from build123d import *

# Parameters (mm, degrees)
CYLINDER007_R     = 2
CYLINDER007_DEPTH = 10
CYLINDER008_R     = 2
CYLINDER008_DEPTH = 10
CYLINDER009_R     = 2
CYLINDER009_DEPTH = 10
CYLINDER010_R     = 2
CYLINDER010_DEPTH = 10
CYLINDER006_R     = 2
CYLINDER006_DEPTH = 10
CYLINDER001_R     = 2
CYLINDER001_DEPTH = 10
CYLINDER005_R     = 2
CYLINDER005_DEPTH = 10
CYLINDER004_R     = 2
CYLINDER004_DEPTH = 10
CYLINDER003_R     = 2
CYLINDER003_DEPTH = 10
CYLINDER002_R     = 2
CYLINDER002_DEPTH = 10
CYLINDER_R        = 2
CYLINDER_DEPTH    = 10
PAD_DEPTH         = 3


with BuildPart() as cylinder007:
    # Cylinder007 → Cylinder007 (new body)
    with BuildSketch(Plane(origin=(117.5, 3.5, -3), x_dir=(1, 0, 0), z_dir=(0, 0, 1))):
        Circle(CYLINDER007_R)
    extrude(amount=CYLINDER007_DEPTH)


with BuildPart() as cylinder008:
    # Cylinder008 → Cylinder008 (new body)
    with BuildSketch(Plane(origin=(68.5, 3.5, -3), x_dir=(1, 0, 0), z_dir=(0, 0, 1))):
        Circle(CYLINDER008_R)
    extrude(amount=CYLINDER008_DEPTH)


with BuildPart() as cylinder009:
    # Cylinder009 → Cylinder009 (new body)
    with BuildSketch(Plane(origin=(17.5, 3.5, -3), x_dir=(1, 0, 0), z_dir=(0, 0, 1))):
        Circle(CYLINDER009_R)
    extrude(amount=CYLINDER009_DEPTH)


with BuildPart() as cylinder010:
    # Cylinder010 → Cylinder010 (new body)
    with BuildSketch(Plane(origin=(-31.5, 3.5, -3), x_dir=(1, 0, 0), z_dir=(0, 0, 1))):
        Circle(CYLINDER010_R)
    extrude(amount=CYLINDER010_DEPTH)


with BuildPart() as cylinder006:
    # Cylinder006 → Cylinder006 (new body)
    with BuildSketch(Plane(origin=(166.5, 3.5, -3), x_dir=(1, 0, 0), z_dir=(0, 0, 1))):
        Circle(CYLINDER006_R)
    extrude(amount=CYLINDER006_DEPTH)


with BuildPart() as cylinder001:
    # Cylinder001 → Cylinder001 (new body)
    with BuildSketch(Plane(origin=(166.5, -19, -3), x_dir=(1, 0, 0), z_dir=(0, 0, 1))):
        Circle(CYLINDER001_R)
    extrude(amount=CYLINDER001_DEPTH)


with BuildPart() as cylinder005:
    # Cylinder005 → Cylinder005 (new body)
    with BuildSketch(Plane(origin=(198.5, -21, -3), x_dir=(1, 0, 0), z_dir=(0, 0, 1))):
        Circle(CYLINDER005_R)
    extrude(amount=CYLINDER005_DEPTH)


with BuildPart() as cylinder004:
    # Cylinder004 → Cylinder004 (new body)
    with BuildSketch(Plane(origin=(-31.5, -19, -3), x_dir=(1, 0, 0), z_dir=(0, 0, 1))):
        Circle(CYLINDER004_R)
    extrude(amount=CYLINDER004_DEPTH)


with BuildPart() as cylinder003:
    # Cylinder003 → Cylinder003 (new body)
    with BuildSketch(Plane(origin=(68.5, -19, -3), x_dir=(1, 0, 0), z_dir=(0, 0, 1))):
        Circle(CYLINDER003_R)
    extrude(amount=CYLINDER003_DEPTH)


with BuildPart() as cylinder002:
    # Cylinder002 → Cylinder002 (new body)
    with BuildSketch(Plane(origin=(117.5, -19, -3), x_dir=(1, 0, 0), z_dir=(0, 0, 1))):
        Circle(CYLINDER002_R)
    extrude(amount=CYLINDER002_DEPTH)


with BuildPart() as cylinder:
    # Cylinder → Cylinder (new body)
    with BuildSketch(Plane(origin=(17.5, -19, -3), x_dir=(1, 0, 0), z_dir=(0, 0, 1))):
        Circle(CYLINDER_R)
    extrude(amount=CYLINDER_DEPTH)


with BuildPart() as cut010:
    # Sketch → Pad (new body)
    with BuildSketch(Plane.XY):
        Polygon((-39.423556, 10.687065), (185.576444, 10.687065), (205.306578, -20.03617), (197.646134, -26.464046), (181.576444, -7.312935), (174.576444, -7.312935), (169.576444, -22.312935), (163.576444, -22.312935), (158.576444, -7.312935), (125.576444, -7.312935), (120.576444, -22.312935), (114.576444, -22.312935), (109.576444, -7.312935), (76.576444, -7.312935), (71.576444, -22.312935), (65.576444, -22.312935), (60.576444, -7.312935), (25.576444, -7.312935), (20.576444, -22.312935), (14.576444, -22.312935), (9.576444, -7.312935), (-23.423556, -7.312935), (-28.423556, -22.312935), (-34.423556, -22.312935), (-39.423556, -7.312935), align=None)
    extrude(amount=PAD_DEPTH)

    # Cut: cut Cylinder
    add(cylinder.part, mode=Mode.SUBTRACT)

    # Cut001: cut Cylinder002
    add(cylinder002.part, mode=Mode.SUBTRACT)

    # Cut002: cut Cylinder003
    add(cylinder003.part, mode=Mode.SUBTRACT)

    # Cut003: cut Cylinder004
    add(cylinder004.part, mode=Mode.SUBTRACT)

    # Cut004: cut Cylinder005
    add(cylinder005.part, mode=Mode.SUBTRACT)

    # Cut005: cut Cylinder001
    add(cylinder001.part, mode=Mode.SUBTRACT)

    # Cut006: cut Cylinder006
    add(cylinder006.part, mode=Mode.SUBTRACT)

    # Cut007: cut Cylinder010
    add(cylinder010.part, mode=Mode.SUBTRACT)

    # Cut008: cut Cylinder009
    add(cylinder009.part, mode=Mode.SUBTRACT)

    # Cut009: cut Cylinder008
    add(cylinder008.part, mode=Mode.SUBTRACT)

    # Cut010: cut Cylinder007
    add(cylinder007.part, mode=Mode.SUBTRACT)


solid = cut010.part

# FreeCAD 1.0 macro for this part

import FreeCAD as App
import Part
import Sketcher
Q = App.Units.Quantity

doc = App.newDocument("Part")
body = doc.addObject("PartDesign::Body", "Body")

# Sketch on XY plane
sketch1 = doc.addObject("Sketcher::SketchObject", "Sketch")
body.addObject(sketch1)
sketch1.AttachmentSupport = (doc.XY_Plane, [""])
sketch1.MapMode = "FlatFace"
sketch1.AttachmentOffset = App.Placement(App.Vector(0, 0, -3), App.Rotation())
sketch1.addGeometry(Part.Circle(App.Vector(117.5, 3.5, 0), App.Vector(0, 0, 1), 2), False)
sketch1.addConstraint(Sketcher.Constraint("Diameter", 0, Q("4 mm")))
sketch1.addConstraint(Sketcher.Constraint("DistanceX", -1, 1, 0, 3, Q("117.5 mm")))
sketch1.addConstraint(Sketcher.Constraint("DistanceY", -1, 1, 0, 3, Q("3.5 mm")))
pad1 = doc.addObject("PartDesign::Pad", "Pad")
body.addObject(pad1)
pad1.Profile = sketch1
pad1.Length = 10
body2 = doc.addObject("PartDesign::Body", "Body001")

# Sketch on XY plane
sketch2 = doc.addObject("Sketcher::SketchObject", "Sketch001")
body2.addObject(sketch2)
sketch2.AttachmentSupport = (doc.getObject("XY_Plane001"), [""])
sketch2.MapMode = "FlatFace"
sketch2.AttachmentOffset = App.Placement(App.Vector(0, 0, -3), App.Rotation())
sketch2.addGeometry(Part.Circle(App.Vector(68.5, 3.5, 0), App.Vector(0, 0, 1), 2), False)
sketch2.addConstraint(Sketcher.Constraint("Diameter", 0, Q("4 mm")))
sketch2.addConstraint(Sketcher.Constraint("DistanceX", -1, 1, 0, 3, Q("68.5 mm")))
sketch2.addConstraint(Sketcher.Constraint("DistanceY", -1, 1, 0, 3, Q("3.5 mm")))
pad2 = doc.addObject("PartDesign::Pad", "Pad001")
body2.addObject(pad2)
pad2.Profile = sketch2
pad2.Length = 10
body3 = doc.addObject("PartDesign::Body", "Body002")

# Sketch on XY plane
sketch3 = doc.addObject("Sketcher::SketchObject", "Sketch002")
body3.addObject(sketch3)
sketch3.AttachmentSupport = (doc.getObject("XY_Plane002"), [""])
sketch3.MapMode = "FlatFace"
sketch3.AttachmentOffset = App.Placement(App.Vector(0, 0, -3), App.Rotation())
sketch3.addGeometry(Part.Circle(App.Vector(17.5, 3.5, 0), App.Vector(0, 0, 1), 2), False)
sketch3.addConstraint(Sketcher.Constraint("Diameter", 0, Q("4 mm")))
sketch3.addConstraint(Sketcher.Constraint("DistanceX", -1, 1, 0, 3, Q("17.5 mm")))
sketch3.addConstraint(Sketcher.Constraint("DistanceY", -1, 1, 0, 3, Q("3.5 mm")))
pad3 = doc.addObject("PartDesign::Pad", "Pad002")
body3.addObject(pad3)
pad3.Profile = sketch3
pad3.Length = 10
body4 = doc.addObject("PartDesign::Body", "Body003")

# Sketch on XY plane
sketch4 = doc.addObject("Sketcher::SketchObject", "Sketch003")
body4.addObject(sketch4)
sketch4.AttachmentSupport = (doc.getObject("XY_Plane003"), [""])
sketch4.MapMode = "FlatFace"
sketch4.AttachmentOffset = App.Placement(App.Vector(0, 0, -3), App.Rotation())
sketch4.addGeometry(Part.Circle(App.Vector(-31.5, 3.5, 0), App.Vector(0, 0, 1), 2), False)
sketch4.addConstraint(Sketcher.Constraint("Diameter", 0, Q("4 mm")))
sketch4.addConstraint(Sketcher.Constraint("DistanceX", 0, 3, -1, 1, Q("31.5 mm")))
sketch4.addConstraint(Sketcher.Constraint("DistanceY", -1, 1, 0, 3, Q("3.5 mm")))
pad4 = doc.addObject("PartDesign::Pad", "Pad003")
body4.addObject(pad4)
pad4.Profile = sketch4
pad4.Length = 10
body5 = doc.addObject("PartDesign::Body", "Body004")

# Sketch on XY plane
sketch5 = doc.addObject("Sketcher::SketchObject", "Sketch004")
body5.addObject(sketch5)
sketch5.AttachmentSupport = (doc.getObject("XY_Plane004"), [""])
sketch5.MapMode = "FlatFace"
sketch5.AttachmentOffset = App.Placement(App.Vector(0, 0, -3), App.Rotation())
sketch5.addGeometry(Part.Circle(App.Vector(166.5, 3.5, 0), App.Vector(0, 0, 1), 2), False)
sketch5.addConstraint(Sketcher.Constraint("Diameter", 0, Q("4 mm")))
sketch5.addConstraint(Sketcher.Constraint("DistanceX", -1, 1, 0, 3, Q("166.5 mm")))
sketch5.addConstraint(Sketcher.Constraint("DistanceY", -1, 1, 0, 3, Q("3.5 mm")))
pad5 = doc.addObject("PartDesign::Pad", "Pad004")
body5.addObject(pad5)
pad5.Profile = sketch5
pad5.Length = 10
body6 = doc.addObject("PartDesign::Body", "Body005")

# Sketch on XY plane
sketch6 = doc.addObject("Sketcher::SketchObject", "Sketch005")
body6.addObject(sketch6)
sketch6.AttachmentSupport = (doc.getObject("XY_Plane005"), [""])
sketch6.MapMode = "FlatFace"
sketch6.AttachmentOffset = App.Placement(App.Vector(0, 0, -3), App.Rotation())
sketch6.addGeometry(Part.Circle(App.Vector(166.5, -19, 0), App.Vector(0, 0, 1), 2), False)
sketch6.addConstraint(Sketcher.Constraint("Diameter", 0, Q("4 mm")))
sketch6.addConstraint(Sketcher.Constraint("DistanceY", 0, 3, -1, 1, Q("19 mm")))
sketch6.addConstraint(Sketcher.Constraint("DistanceX", -1, 1, 0, 3, Q("166.5 mm")))
pad6 = doc.addObject("PartDesign::Pad", "Pad005")
body6.addObject(pad6)
pad6.Profile = sketch6
pad6.Length = 10
body7 = doc.addObject("PartDesign::Body", "Body006")

# Sketch on XY plane
sketch7 = doc.addObject("Sketcher::SketchObject", "Sketch006")
body7.addObject(sketch7)
sketch7.AttachmentSupport = (doc.getObject("XY_Plane006"), [""])
sketch7.MapMode = "FlatFace"
sketch7.AttachmentOffset = App.Placement(App.Vector(0, 0, -3), App.Rotation())
sketch7.addGeometry(Part.Circle(App.Vector(198.5, -21, 0), App.Vector(0, 0, 1), 2), False)
sketch7.addConstraint(Sketcher.Constraint("Diameter", 0, Q("4 mm")))
sketch7.addConstraint(Sketcher.Constraint("DistanceY", 0, 3, -1, 1, Q("21 mm")))
sketch7.addConstraint(Sketcher.Constraint("DistanceX", -1, 1, 0, 3, Q("198.5 mm")))
pad7 = doc.addObject("PartDesign::Pad", "Pad006")
body7.addObject(pad7)
pad7.Profile = sketch7
pad7.Length = 10
body8 = doc.addObject("PartDesign::Body", "Body007")

# Sketch on XY plane
sketch8 = doc.addObject("Sketcher::SketchObject", "Sketch007")
body8.addObject(sketch8)
sketch8.AttachmentSupport = (doc.getObject("XY_Plane007"), [""])
sketch8.MapMode = "FlatFace"
sketch8.AttachmentOffset = App.Placement(App.Vector(0, 0, -3), App.Rotation())
sketch8.addGeometry(Part.Circle(App.Vector(-31.5, -19, 0), App.Vector(0, 0, 1), 2), False)
sketch8.addConstraint(Sketcher.Constraint("Diameter", 0, Q("4 mm")))
sketch8.addConstraint(Sketcher.Constraint("DistanceY", 0, 3, -1, 1, Q("19 mm")))
sketch8.addConstraint(Sketcher.Constraint("DistanceX", 0, 3, -1, 1, Q("31.5 mm")))
pad8 = doc.addObject("PartDesign::Pad", "Pad007")
body8.addObject(pad8)
pad8.Profile = sketch8
pad8.Length = 10
body9 = doc.addObject("PartDesign::Body", "Body008")

# Sketch on XY plane
sketch9 = doc.addObject("Sketcher::SketchObject", "Sketch008")
body9.addObject(sketch9)
sketch9.AttachmentSupport = (doc.getObject("XY_Plane008"), [""])
sketch9.MapMode = "FlatFace"
sketch9.AttachmentOffset = App.Placement(App.Vector(0, 0, -3), App.Rotation())
sketch9.addGeometry(Part.Circle(App.Vector(68.5, -19, 0), App.Vector(0, 0, 1), 2), False)
sketch9.addConstraint(Sketcher.Constraint("Diameter", 0, Q("4 mm")))
sketch9.addConstraint(Sketcher.Constraint("DistanceY", 0, 3, -1, 1, Q("19 mm")))
sketch9.addConstraint(Sketcher.Constraint("DistanceX", -1, 1, 0, 3, Q("68.5 mm")))
pad9 = doc.addObject("PartDesign::Pad", "Pad008")
body9.addObject(pad9)
pad9.Profile = sketch9
pad9.Length = 10
body10 = doc.addObject("PartDesign::Body", "Body009")

# Sketch on XY plane
sketch10 = doc.addObject("Sketcher::SketchObject", "Sketch009")
body10.addObject(sketch10)
sketch10.AttachmentSupport = (doc.getObject("XY_Plane009"), [""])
sketch10.MapMode = "FlatFace"
sketch10.AttachmentOffset = App.Placement(App.Vector(0, 0, -3), App.Rotation())
sketch10.addGeometry(Part.Circle(App.Vector(117.5, -19, 0), App.Vector(0, 0, 1), 2), False)
sketch10.addConstraint(Sketcher.Constraint("Diameter", 0, Q("4 mm")))
sketch10.addConstraint(Sketcher.Constraint("DistanceY", 0, 3, -1, 1, Q("19 mm")))
sketch10.addConstraint(Sketcher.Constraint("DistanceX", -1, 1, 0, 3, Q("117.5 mm")))
pad10 = doc.addObject("PartDesign::Pad", "Pad009")
body10.addObject(pad10)
pad10.Profile = sketch10
pad10.Length = 10
body11 = doc.addObject("PartDesign::Body", "Body010")

# Sketch on XY plane
sketch11 = doc.addObject("Sketcher::SketchObject", "Sketch010")
body11.addObject(sketch11)
sketch11.AttachmentSupport = (doc.getObject("XY_Plane010"), [""])
sketch11.MapMode = "FlatFace"
sketch11.AttachmentOffset = App.Placement(App.Vector(0, 0, -3), App.Rotation())
sketch11.addGeometry(Part.Circle(App.Vector(17.5, -19, 0), App.Vector(0, 0, 1), 2), False)
sketch11.addConstraint(Sketcher.Constraint("Diameter", 0, Q("4 mm")))
sketch11.addConstraint(Sketcher.Constraint("DistanceY", 0, 3, -1, 1, Q("19 mm")))
sketch11.addConstraint(Sketcher.Constraint("DistanceX", -1, 1, 0, 3, Q("17.5 mm")))
pad11 = doc.addObject("PartDesign::Pad", "Pad010")
body11.addObject(pad11)
pad11.Profile = sketch11
pad11.Length = 10
body12 = doc.addObject("PartDesign::Body", "Body011")

# Sketch on XY plane
sketch12 = doc.addObject("Sketcher::SketchObject", "Sketch011")
body12.addObject(sketch12)
sketch12.AttachmentSupport = (doc.getObject("XY_Plane011"), [""])
sketch12.MapMode = "FlatFace"
sketch12.addGeometry(Part.LineSegment(App.Vector(186, 11, 0), App.Vector(-39, 11, 0)), False)
sketch12.addGeometry(Part.LineSegment(App.Vector(-39, 11, 0), App.Vector(-39, -7, 0)), False)
sketch12.addGeometry(Part.LineSegment(App.Vector(-39, -7, 0), App.Vector(-34, -22, 0)), False)
sketch12.addGeometry(Part.LineSegment(App.Vector(-34, -22, 0), App.Vector(-28, -22, 0)), False)
sketch12.addGeometry(Part.LineSegment(App.Vector(-28, -22, 0), App.Vector(-23, -7, 0)), False)
sketch12.addGeometry(Part.LineSegment(App.Vector(-23, -7, 0), App.Vector(10, -7, 0)), False)
sketch12.addGeometry(Part.LineSegment(App.Vector(10, -7, 0), App.Vector(15, -22, 0)), False)
sketch12.addGeometry(Part.LineSegment(App.Vector(15, -22, 0), App.Vector(21, -22, 0)), False)
sketch12.addGeometry(Part.LineSegment(App.Vector(21, -22, 0), App.Vector(26, -7, 0)), False)
sketch12.addGeometry(Part.LineSegment(App.Vector(26, -7, 0), App.Vector(61, -7, 0)), False)
sketch12.addGeometry(Part.LineSegment(App.Vector(61, -7, 0), App.Vector(66, -22, 0)), False)
sketch12.addGeometry(Part.LineSegment(App.Vector(66, -22, 0), App.Vector(72, -22, 0)), False)
sketch12.addGeometry(Part.LineSegment(App.Vector(72, -22, 0), App.Vector(77, -7, 0)), False)
sketch12.addGeometry(Part.LineSegment(App.Vector(77, -7, 0), App.Vector(110, -7, 0)), False)
sketch12.addGeometry(Part.LineSegment(App.Vector(110, -7, 0), App.Vector(115, -22, 0)), False)
sketch12.addGeometry(Part.LineSegment(App.Vector(115, -22, 0), App.Vector(121, -22, 0)), False)
sketch12.addGeometry(Part.LineSegment(App.Vector(121, -22, 0), App.Vector(126, -7, 0)), False)
sketch12.addGeometry(Part.LineSegment(App.Vector(126, -7, 0), App.Vector(159, -7, 0)), False)
sketch12.addGeometry(Part.LineSegment(App.Vector(159, -7, 0), App.Vector(164, -22, 0)), False)
sketch12.addGeometry(Part.LineSegment(App.Vector(164, -22, 0), App.Vector(170, -22, 0)), False)
sketch12.addGeometry(Part.LineSegment(App.Vector(170, -22, 0), App.Vector(175, -7, 0)), False)
sketch12.addGeometry(Part.LineSegment(App.Vector(175, -7, 0), App.Vector(182, -7, 0)), False)
sketch12.addGeometry(Part.LineSegment(App.Vector(182, -7, 0), App.Vector(198, -26, 0)), False)
sketch12.addGeometry(Part.LineSegment(App.Vector(198, -26, 0), App.Vector(205, -20, 0)), False)
sketch12.addGeometry(Part.LineSegment(App.Vector(205, -20, 0), App.Vector(186, 11, 0)), False)
sketch12.addConstraint(Sketcher.Constraint("Coincident", 0, 2, 1, 1))
sketch12.addConstraint(Sketcher.Constraint("Coincident", 1, 2, 2, 1))
sketch12.addConstraint(Sketcher.Constraint("Coincident", 2, 2, 3, 1))
sketch12.addConstraint(Sketcher.Constraint("Coincident", 3, 2, 4, 1))
sketch12.addConstraint(Sketcher.Constraint("Coincident", 4, 2, 5, 1))
sketch12.addConstraint(Sketcher.Constraint("Coincident", 5, 2, 6, 1))
sketch12.addConstraint(Sketcher.Constraint("Coincident", 6, 2, 7, 1))
sketch12.addConstraint(Sketcher.Constraint("Coincident", 7, 2, 8, 1))
sketch12.addConstraint(Sketcher.Constraint("Coincident", 8, 2, 9, 1))
sketch12.addConstraint(Sketcher.Constraint("Coincident", 9, 2, 10, 1))
sketch12.addConstraint(Sketcher.Constraint("Coincident", 10, 2, 11, 1))
sketch12.addConstraint(Sketcher.Constraint("Coincident", 11, 2, 12, 1))
sketch12.addConstraint(Sketcher.Constraint("Coincident", 12, 2, 13, 1))
sketch12.addConstraint(Sketcher.Constraint("Coincident", 13, 2, 14, 1))
sketch12.addConstraint(Sketcher.Constraint("Coincident", 14, 2, 15, 1))
sketch12.addConstraint(Sketcher.Constraint("Coincident", 15, 2, 16, 1))
sketch12.addConstraint(Sketcher.Constraint("Coincident", 16, 2, 17, 1))
sketch12.addConstraint(Sketcher.Constraint("Coincident", 17, 2, 18, 1))
sketch12.addConstraint(Sketcher.Constraint("Coincident", 18, 2, 19, 1))
sketch12.addConstraint(Sketcher.Constraint("Coincident", 19, 2, 20, 1))
sketch12.addConstraint(Sketcher.Constraint("Coincident", 20, 2, 21, 1))
sketch12.addConstraint(Sketcher.Constraint("Coincident", 21, 2, 22, 1))
sketch12.addConstraint(Sketcher.Constraint("Coincident", 22, 2, 23, 1))
sketch12.addConstraint(Sketcher.Constraint("Coincident", 23, 2, 24, 1))
sketch12.addConstraint(Sketcher.Constraint("Coincident", 24, 2, 0, 1))
sketch12.addConstraint(Sketcher.Constraint("Horizontal", 0))
sketch12.addConstraint(Sketcher.Constraint("Vertical", 1))
sketch12.addConstraint(Sketcher.Constraint("Horizontal", 3))
sketch12.addConstraint(Sketcher.Constraint("Horizontal", 5))
sketch12.addConstraint(Sketcher.Constraint("Horizontal", 7))
sketch12.addConstraint(Sketcher.Constraint("Horizontal", 9))
sketch12.addConstraint(Sketcher.Constraint("Horizontal", 11))
sketch12.addConstraint(Sketcher.Constraint("Horizontal", 13))
sketch12.addConstraint(Sketcher.Constraint("Horizontal", 15))
sketch12.addConstraint(Sketcher.Constraint("Horizontal", 17))
sketch12.addConstraint(Sketcher.Constraint("Horizontal", 19))
sketch12.addConstraint(Sketcher.Constraint("Horizontal", 21))
sketch12.addConstraint(Sketcher.Constraint("Parallel", 2, 6))
sketch12.addConstraint(Sketcher.Constraint("Parallel", 4, 8))
sketch12.addConstraint(Sketcher.Constraint("Parallel", 6, 10))
sketch12.addConstraint(Sketcher.Constraint("Parallel", 8, 12))
sketch12.addConstraint(Sketcher.Constraint("Parallel", 10, 14))
sketch12.addConstraint(Sketcher.Constraint("Parallel", 12, 16))
sketch12.addConstraint(Sketcher.Constraint("Parallel", 14, 18))
sketch12.addConstraint(Sketcher.Constraint("Parallel", 16, 20))
sketch12.addConstraint(Sketcher.Constraint("Perpendicular", 22, 23))
sketch12.addConstraint(Sketcher.Constraint("Horizontal", 1, 2, 4, 2))
sketch12.addConstraint(Sketcher.Constraint("Horizontal", 3, 2, 6, 2))
sketch12.addConstraint(Sketcher.Constraint("Horizontal", 5, 2, 8, 2))
sketch12.addConstraint(Sketcher.Constraint("Horizontal", 7, 2, 10, 2))
sketch12.addConstraint(Sketcher.Constraint("Horizontal", 9, 2, 12, 2))
sketch12.addConstraint(Sketcher.Constraint("Horizontal", 11, 2, 14, 2))
sketch12.addConstraint(Sketcher.Constraint("Horizontal", 13, 2, 16, 2))
sketch12.addConstraint(Sketcher.Constraint("Horizontal", 15, 2, 18, 2))
sketch12.addConstraint(Sketcher.Constraint("Horizontal", 17, 2, 20, 2))
sketch12.addConstraint(Sketcher.Constraint("Equal", 3, 7))
sketch12.addConstraint(Sketcher.Constraint("Equal", 7, 11))
sketch12.addConstraint(Sketcher.Constraint("Equal", 5, 13))
sketch12.addConstraint(Sketcher.Constraint("Equal", 11, 15))
sketch12.addConstraint(Sketcher.Constraint("Equal", 13, 17))
sketch12.addConstraint(Sketcher.Constraint("Equal", 15, 19))
sketch12.addConstraint(Sketcher.Constraint("Equal", 2, 4))
sketch12.addConstraint(Sketcher.Constraint("DistanceX", 0, 2, 0, 1, Q("225 mm")))
sketch12.addConstraint(Sketcher.Constraint("DistanceX", 3, 1, 3, 2, Q("6 mm")))
sketch12.addConstraint(Sketcher.Constraint("DistanceX", 5, 1, 5, 2, Q("33 mm")))
sketch12.addConstraint(Sketcher.Constraint("DistanceX", 9, 1, 9, 2, Q("35 mm")))
sketch12.addConstraint(Sketcher.Constraint("DistanceX", 21, 1, 21, 2, Q("7 mm")))
sketch12.addConstraint(Sketcher.Constraint("DistanceY", 1, 2, 1, 1, Q("18 mm")))
sketch12.addConstraint(Sketcher.Constraint("Angle", 22, Q("-50 deg")))
sketch12.addConstraint(Sketcher.Constraint("Distance", 22, Q("25 mm")))
sketch12.addConstraint(Sketcher.Constraint("Distance", 23, Q("10 mm")))
sketch12.addConstraint(Sketcher.Constraint("DistanceX", 1, 2, 2, 2, Q("5 mm")))
sketch12.addConstraint(Sketcher.Constraint("DistanceY", 2, 2, 1, 2, Q("15 mm")))
sketch12.addConstraint(Sketcher.Constraint("DistanceX", -1, 1, 23, 2, Q("205.306578 mm")))
sketch12.addConstraint(Sketcher.Constraint("DistanceY", 23, 2, -1, 1, Q("20.03617 mm")))
pad12 = doc.addObject("PartDesign::Pad", "Pad011")
body12.addObject(pad12)
pad12.Profile = sketch12
pad12.Length = 3
doc.recompute()

boolean = doc.addObject("PartDesign::Boolean", "Boolean")
body12.addObject(boolean)
boolean.Type = "Cut"
boolean.addObjects([body11])
doc.recompute()

boolean2 = doc.addObject("PartDesign::Boolean", "Boolean001")
body12.addObject(boolean2)
boolean2.Type = "Cut"
boolean2.addObjects([body10])
doc.recompute()

boolean3 = doc.addObject("PartDesign::Boolean", "Boolean002")
body12.addObject(boolean3)
boolean3.Type = "Cut"
boolean3.addObjects([body9])
doc.recompute()

boolean4 = doc.addObject("PartDesign::Boolean", "Boolean003")
body12.addObject(boolean4)
boolean4.Type = "Cut"
boolean4.addObjects([body8])
doc.recompute()

boolean5 = doc.addObject("PartDesign::Boolean", "Boolean004")
body12.addObject(boolean5)
boolean5.Type = "Cut"
boolean5.addObjects([body7])
doc.recompute()

boolean6 = doc.addObject("PartDesign::Boolean", "Boolean005")
body12.addObject(boolean6)
boolean6.Type = "Cut"
boolean6.addObjects([body6])
doc.recompute()

boolean7 = doc.addObject("PartDesign::Boolean", "Boolean006")
body12.addObject(boolean7)
boolean7.Type = "Cut"
boolean7.addObjects([body5])
doc.recompute()

boolean8 = doc.addObject("PartDesign::Boolean", "Boolean007")
body12.addObject(boolean8)
boolean8.Type = "Cut"
boolean8.addObjects([body4])
doc.recompute()

boolean9 = doc.addObject("PartDesign::Boolean", "Boolean008")
body12.addObject(boolean9)
boolean9.Type = "Cut"
boolean9.addObjects([body3])
doc.recompute()

boolean10 = doc.addObject("PartDesign::Boolean", "Boolean009")
body12.addObject(boolean10)
boolean10.Type = "Cut"
boolean10.addObjects([body2])
doc.recompute()

boolean11 = doc.addObject("PartDesign::Boolean", "Boolean010")
body12.addObject(boolean11)
boolean11.Type = "Cut"
boolean11.addObjects([body])

doc.recompute()
